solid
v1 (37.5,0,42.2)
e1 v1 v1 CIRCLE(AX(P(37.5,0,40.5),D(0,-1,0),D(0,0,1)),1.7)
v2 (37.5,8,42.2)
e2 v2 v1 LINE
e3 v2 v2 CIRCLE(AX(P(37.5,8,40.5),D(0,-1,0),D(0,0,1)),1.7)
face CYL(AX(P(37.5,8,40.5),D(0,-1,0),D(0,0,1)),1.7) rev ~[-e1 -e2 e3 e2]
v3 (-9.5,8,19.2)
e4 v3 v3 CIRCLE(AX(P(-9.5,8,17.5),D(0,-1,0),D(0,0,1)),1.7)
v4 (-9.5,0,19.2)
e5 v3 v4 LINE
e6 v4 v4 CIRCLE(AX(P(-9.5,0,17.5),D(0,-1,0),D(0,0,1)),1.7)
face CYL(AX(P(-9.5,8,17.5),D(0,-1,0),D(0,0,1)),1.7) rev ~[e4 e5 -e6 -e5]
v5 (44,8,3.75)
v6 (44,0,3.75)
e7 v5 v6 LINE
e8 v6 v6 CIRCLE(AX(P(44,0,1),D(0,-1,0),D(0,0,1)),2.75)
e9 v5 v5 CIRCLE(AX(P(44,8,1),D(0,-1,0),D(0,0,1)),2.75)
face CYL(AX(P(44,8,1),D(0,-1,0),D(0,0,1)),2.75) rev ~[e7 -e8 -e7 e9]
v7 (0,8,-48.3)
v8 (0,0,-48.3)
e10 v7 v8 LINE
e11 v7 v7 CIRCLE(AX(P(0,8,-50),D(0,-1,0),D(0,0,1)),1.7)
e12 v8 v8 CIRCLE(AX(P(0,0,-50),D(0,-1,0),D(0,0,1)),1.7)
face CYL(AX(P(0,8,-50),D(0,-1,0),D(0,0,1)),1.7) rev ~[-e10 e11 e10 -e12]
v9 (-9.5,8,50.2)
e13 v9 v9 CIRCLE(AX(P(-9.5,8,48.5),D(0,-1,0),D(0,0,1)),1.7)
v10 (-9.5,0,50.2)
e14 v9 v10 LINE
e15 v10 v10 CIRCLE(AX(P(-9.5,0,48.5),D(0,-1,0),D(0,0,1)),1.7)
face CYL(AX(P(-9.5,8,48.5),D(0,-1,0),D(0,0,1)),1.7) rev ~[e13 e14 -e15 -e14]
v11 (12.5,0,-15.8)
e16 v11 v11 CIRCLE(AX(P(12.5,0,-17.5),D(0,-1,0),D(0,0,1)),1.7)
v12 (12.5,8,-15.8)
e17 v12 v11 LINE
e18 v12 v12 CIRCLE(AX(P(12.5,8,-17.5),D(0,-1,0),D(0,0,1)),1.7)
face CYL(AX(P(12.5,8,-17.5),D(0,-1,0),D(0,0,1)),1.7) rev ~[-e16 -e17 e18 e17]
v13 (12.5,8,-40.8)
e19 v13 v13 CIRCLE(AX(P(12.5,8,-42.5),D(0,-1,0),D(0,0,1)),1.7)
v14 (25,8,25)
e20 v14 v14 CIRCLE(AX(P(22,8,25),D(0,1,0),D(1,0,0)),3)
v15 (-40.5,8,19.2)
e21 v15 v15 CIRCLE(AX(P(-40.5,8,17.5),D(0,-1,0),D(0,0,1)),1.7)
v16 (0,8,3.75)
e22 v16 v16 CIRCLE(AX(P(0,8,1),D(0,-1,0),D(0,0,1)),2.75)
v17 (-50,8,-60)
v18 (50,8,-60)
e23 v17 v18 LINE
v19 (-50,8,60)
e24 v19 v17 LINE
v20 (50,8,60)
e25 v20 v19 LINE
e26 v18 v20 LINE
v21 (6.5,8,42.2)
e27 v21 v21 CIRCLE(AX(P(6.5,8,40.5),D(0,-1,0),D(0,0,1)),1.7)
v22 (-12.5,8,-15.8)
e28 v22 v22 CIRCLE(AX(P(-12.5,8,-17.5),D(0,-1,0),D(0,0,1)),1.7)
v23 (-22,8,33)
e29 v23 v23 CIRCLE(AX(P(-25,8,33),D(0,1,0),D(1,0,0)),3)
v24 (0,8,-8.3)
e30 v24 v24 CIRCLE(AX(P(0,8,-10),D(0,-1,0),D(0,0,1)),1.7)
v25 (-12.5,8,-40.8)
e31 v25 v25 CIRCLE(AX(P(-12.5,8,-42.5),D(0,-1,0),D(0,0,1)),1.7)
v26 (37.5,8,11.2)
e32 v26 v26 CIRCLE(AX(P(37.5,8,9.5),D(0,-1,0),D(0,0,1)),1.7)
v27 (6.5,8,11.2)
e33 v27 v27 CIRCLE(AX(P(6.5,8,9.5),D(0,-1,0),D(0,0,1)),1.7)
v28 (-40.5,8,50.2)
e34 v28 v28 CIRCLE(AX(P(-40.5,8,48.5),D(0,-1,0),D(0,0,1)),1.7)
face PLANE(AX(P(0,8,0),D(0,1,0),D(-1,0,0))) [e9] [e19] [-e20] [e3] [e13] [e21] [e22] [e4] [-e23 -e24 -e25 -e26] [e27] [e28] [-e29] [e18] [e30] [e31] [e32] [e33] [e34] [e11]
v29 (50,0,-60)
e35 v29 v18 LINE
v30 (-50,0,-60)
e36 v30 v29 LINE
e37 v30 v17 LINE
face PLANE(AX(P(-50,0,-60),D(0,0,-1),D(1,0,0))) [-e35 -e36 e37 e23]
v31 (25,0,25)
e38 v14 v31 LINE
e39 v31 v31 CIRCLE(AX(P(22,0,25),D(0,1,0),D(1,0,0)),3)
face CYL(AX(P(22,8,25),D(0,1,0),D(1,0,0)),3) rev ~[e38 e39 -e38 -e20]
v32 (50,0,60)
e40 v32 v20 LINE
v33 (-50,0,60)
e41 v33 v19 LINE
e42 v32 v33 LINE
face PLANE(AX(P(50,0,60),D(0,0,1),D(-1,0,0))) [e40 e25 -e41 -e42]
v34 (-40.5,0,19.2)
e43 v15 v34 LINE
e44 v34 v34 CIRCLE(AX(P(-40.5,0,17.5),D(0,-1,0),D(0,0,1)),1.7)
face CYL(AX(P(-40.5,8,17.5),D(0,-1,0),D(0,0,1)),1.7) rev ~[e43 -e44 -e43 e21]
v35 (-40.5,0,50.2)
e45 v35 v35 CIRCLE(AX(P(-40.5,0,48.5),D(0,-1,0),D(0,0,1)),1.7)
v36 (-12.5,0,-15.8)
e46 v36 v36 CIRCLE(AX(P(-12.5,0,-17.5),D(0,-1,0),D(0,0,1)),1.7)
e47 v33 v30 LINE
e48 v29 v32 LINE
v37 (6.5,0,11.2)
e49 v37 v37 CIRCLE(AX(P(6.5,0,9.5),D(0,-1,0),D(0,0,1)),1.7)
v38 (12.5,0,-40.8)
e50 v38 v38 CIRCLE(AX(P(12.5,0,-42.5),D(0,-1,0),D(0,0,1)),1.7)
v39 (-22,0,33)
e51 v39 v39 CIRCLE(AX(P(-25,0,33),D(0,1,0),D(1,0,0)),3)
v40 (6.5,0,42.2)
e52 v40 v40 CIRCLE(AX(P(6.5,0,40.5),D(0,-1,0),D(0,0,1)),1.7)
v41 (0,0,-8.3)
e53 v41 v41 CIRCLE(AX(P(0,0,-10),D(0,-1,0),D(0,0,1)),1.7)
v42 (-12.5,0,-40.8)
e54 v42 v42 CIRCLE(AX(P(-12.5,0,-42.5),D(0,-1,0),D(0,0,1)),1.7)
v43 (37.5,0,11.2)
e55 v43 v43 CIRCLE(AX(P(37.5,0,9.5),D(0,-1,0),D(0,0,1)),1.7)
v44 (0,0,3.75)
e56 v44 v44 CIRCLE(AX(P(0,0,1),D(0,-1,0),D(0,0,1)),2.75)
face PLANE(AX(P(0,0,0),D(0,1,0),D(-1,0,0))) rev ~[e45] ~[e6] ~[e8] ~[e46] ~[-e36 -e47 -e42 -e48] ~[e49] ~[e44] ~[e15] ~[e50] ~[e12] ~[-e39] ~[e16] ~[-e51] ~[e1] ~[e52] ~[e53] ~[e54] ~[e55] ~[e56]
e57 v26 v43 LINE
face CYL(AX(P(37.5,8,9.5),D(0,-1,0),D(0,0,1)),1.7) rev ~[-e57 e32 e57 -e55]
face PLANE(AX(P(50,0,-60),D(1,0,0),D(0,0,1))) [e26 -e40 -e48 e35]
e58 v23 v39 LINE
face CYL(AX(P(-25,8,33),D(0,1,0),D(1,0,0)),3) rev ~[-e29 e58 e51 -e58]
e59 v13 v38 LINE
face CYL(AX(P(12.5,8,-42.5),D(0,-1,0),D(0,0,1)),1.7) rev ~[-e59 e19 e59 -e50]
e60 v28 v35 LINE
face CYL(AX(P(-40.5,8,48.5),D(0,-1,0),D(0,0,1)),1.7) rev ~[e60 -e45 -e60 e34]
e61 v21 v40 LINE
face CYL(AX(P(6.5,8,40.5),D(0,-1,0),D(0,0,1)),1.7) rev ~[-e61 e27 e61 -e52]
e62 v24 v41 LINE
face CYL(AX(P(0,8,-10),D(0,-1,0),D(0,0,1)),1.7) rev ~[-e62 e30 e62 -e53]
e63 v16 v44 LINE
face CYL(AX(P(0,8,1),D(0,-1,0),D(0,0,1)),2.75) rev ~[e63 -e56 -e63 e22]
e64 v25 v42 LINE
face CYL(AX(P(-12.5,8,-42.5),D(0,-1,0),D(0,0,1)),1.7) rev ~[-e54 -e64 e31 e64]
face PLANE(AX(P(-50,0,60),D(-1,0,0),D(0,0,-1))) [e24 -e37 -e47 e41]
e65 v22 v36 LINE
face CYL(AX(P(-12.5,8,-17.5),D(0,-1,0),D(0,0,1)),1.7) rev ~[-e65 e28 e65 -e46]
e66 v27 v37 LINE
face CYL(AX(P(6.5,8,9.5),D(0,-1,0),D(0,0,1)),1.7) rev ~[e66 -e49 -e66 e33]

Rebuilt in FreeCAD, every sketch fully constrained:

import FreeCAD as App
import Part
import Sketcher

V = App.Vector


def add_polygon(sketch, points):
    """Adds a closed chain of lines whose ends are joined by coincident constraints."""
    first, n = sketch.GeometryCount, len(points)
    for a, b in zip(points, points[1:] + points[:1]):
        sketch.addGeometry(Part.LineSegment(App.Vector(*a, 0), App.Vector(*b, 0)), False)
    for i in range(n):
        sketch.addConstraint(Sketcher.Constraint("Coincident", first + i, 2, first + (i + 1) % n, 1))

doc = App.newDocument("Part")
body = doc.addObject("PartDesign::Body", "Body")

sketch1 = doc.addObject("Sketcher::SketchObject", "Sketch")
body.addObject(sketch1)
sketch1.AttachmentSupport = (doc.XZ_Plane, [""])
sketch1.MapMode = "FlatFace"
add_polygon(sketch1, [(50, -60), (-50, -60), (-50, 60), (50, 60)])
sketch1.addConstraint(Sketcher.Constraint("Horizontal", 0))
sketch1.addConstraint(Sketcher.Constraint("Vertical", 1))
sketch1.addConstraint(Sketcher.Constraint("Horizontal", 2))
sketch1.addConstraint(Sketcher.Constraint("Vertical", 3))
sketch1.addConstraint(Sketcher.Constraint("Symmetric", 0, 2, 2, 2, -1, 1))
sketch1.addConstraint(Sketcher.Constraint("DistanceX", 0, 2, 0, 1, 100.0))
sketch1.addConstraint(Sketcher.Constraint("DistanceY", 1, 1, 1, 2, 120.0))
pad1 = doc.addObject("PartDesign::Pad", "Pad")
body.addObject(pad1)
pad1.Profile = sketch1
pad1.Length = 8
pad1.Reversed = True

sketch2 = doc.addObject("Sketcher::SketchObject", "Sketch001")
body.addObject(sketch2)
sketch2.AttachmentSupport = (doc.XZ_Plane, [""])
sketch2.MapMode = "FlatFace"
sketch2.AttachmentOffset = App.Placement(V(0, 0, -8), App.Rotation())
sketch2.addGeometry(Part.Circle(V(0, -10, 0), V(0, 0, 1), 1.7), False)
sketch2.addGeometry(Part.Circle(V(0, -50, 0), V(0, 0, 1), 1.7), False)
sketch2.addConstraint(Sketcher.Constraint("Equal", 0, 1))
sketch2.addConstraint(Sketcher.Constraint("PointOnObject", 0, 3, -2))
sketch2.addConstraint(Sketcher.Constraint("PointOnObject", 1, 3, -2))
sketch2.addConstraint(Sketcher.Constraint("Diameter", 0, 3.4))
sketch2.addConstraint(Sketcher.Constraint("DistanceY", 0, 3, -1, 1, 10.0))
sketch2.addConstraint(Sketcher.Constraint("DistanceY", 1, 3, -1, 1, 50.0))
doc.recompute()
hole = doc.addObject("PartDesign::Hole", "Hole")
body.addObject(hole)
hole.Profile = sketch2
hole.ThreadType = "None"
hole.Diameter = 3.4
hole.DepthType = "ThroughAll"
hole.Reversed = True

sketch3 = doc.addObject("Sketcher::SketchObject", "Sketch002")
body.addObject(sketch3)
sketch3.AttachmentSupport = (doc.XZ_Plane, [""])
sketch3.MapMode = "FlatFace"
sketch3.AttachmentOffset = App.Placement(V(0, 0, -8), App.Rotation())
sketch3.addGeometry(Part.Circle(V(-12.5, -17.5, 0), V(0, 0, 1), 1.7), False)
sketch3.addGeometry(Part.Circle(V(-12.5, -42.5, 0), V(0, 0, 1), 1.7), False)
sketch3.addGeometry(Part.Circle(V(12.5, -42.5, 0), V(0, 0, 1), 1.7), False)
sketch3.addGeometry(Part.Circle(V(12.5, -17.5, 0), V(0, 0, 1), 1.7), False)
sketch3.addConstraint(Sketcher.Constraint("Equal", 0, 1))
sketch3.addConstraint(Sketcher.Constraint("Equal", 1, 2))
sketch3.addConstraint(Sketcher.Constraint("Equal", 2, 3))
sketch3.addConstraint(Sketcher.Constraint("Symmetric", 1, 3, 2, 3, -2))
sketch3.addConstraint(Sketcher.Constraint("Symmetric", 0, 3, 3, 3, -2))
sketch3.addConstraint(Sketcher.Constraint("Vertical", 0, 3, 1, 3))
sketch3.addConstraint(Sketcher.Constraint("Diameter", 0, 3.4))
sketch3.addConstraint(Sketcher.Constraint("DistanceY", 1, 3, 0, 3, 25.0))
sketch3.addConstraint(Sketcher.Constraint("DistanceX", 1, 3, 2, 3, 25.0))
sketch3.addConstraint(Sketcher.Constraint("DistanceY", 0, 3, -1, 1, 17.5))
doc.recompute()
hole2 = doc.addObject("PartDesign::Hole", "Hole001")
body.addObject(hole2)
hole2.Profile = sketch3
hole2.ThreadType = "None"
hole2.Diameter = 3.4
hole2.DepthType = "ThroughAll"
hole2.Reversed = True

sketch4 = doc.addObject("Sketcher::SketchObject", "Sketch003")
body.addObject(sketch4)
sketch4.AttachmentSupport = (doc.XZ_Plane, [""])
sketch4.MapMode = "FlatFace"
sketch4.AttachmentOffset = App.Placement(V(0, 0, -8), App.Rotation())
sketch4.addGeometry(Part.Circle(V(-40.5, 48.5, 0), V(0, 0, 1), 1.7), False)
sketch4.addGeometry(Part.Circle(V(-40.5, 17.5, 0), V(0, 0, 1), 1.7), False)
sketch4.addGeometry(Part.Circle(V(-9.5, 17.5, 0), V(0, 0, 1), 1.7), False)
sketch4.addGeometry(Part.Circle(V(-9.5, 48.5, 0), V(0, 0, 1), 1.7), False)
sketch4.addConstraint(Sketcher.Constraint("Equal", 0, 1))
sketch4.addConstraint(Sketcher.Constraint("Equal", 1, 2))
sketch4.addConstraint(Sketcher.Constraint("Equal", 2, 3))
sketch4.addConstraint(Sketcher.Constraint("Horizontal", 1, 3, 2, 3))
sketch4.addConstraint(Sketcher.Constraint("Horizontal", 0, 3, 3, 3))
sketch4.addConstraint(Sketcher.Constraint("Vertical", 0, 3, 1, 3))
sketch4.addConstraint(Sketcher.Constraint("Vertical", 2, 3, 3, 3))
sketch4.addConstraint(Sketcher.Constraint("Diameter", 0, 3.4))
sketch4.addConstraint(Sketcher.Constraint("DistanceY", 1, 3, 0, 3, 31.0))
sketch4.addConstraint(Sketcher.Constraint("DistanceX", 1, 3, 2, 3, 31.0))
sketch4.addConstraint(Sketcher.Constraint("DistanceX", 0, 3, -1, 1, 40.5))
sketch4.addConstraint(Sketcher.Constraint("DistanceY", -1, 1, 0, 3, 48.5))
doc.recompute()
hole3 = doc.addObject("PartDesign::Hole", "Hole002")
body.addObject(hole3)
hole3.Profile = sketch4
hole3.ThreadType = "None"
hole3.Diameter = 3.4
hole3.DepthType = "ThroughAll"
hole3.Reversed = True

sketch5 = doc.addObject("Sketcher::SketchObject", "Sketch004")
body.addObject(sketch5)
sketch5.AttachmentSupport = (doc.XZ_Plane, [""])
sketch5.MapMode = "FlatFace"
sketch5.AttachmentOffset = App.Placement(V(0, 0, -8), App.Rotation())
sketch5.addGeometry(Part.Circle(V(-25, 33, 0), V(0, 0, 1), 3), False)
sketch5.addConstraint(Sketcher.Constraint("Diameter", 0, 6.0))
sketch5.addConstraint(Sketcher.Constraint("DistanceX", 0, 3, -1, 1, 25.0))
sketch5.addConstraint(Sketcher.Constraint("DistanceY", -1, 1, 0, 3, 33.0))
pocket1 = doc.addObject("PartDesign::Pocket", "Pocket")
body.addObject(pocket1)
pocket1.Profile = sketch5
pocket1.Type = "ThroughAll"
pocket1.Reversed = True

sketch6 = doc.addObject("Sketcher::SketchObject", "Sketch005")
body.addObject(sketch6)
sketch6.AttachmentSupport = (doc.XZ_Plane, [""])
sketch6.MapMode = "FlatFace"
sketch6.AttachmentOffset = App.Placement(V(0, 0, -8), App.Rotation())
sketch6.addGeometry(Part.Circle(V(6.5, 40.5, 0), V(0, 0, 1), 1.7), False)
sketch6.addGeometry(Part.Circle(V(6.5, 9.5, 0), V(0, 0, 1), 1.7), False)
sketch6.addGeometry(Part.Circle(V(37.5, 9.5, 0), V(0, 0, 1), 1.7), False)
sketch6.addGeometry(Part.Circle(V(37.5, 40.5, 0), V(0, 0, 1), 1.7), False)
sketch6.addConstraint(Sketcher.Constraint("Equal", 0, 1))
sketch6.addConstraint(Sketcher.Constraint("Equal", 1, 2))
sketch6.addConstraint(Sketcher.Constraint("Equal", 2, 3))
sketch6.addConstraint(Sketcher.Constraint("Horizontal", 1, 3, 2, 3))
sketch6.addConstraint(Sketcher.Constraint("Horizontal", 0, 3, 3, 3))
sketch6.addConstraint(Sketcher.Constraint("Vertical", 0, 3, 1, 3))
sketch6.addConstraint(Sketcher.Constraint("Vertical", 2, 3, 3, 3))
sketch6.addConstraint(Sketcher.Constraint("Diameter", 0, 3.4))
sketch6.addConstraint(Sketcher.Constraint("DistanceY", 1, 3, 0, 3, 31.0))
sketch6.addConstraint(Sketcher.Constraint("DistanceX", 1, 3, 2, 3, 31.0))
sketch6.addConstraint(Sketcher.Constraint("DistanceX", -1, 1, 0, 3, 6.5))
sketch6.addConstraint(Sketcher.Constraint("DistanceY", -1, 1, 0, 3, 40.5))
doc.recompute()
hole4 = doc.addObject("PartDesign::Hole", "Hole003")
body.addObject(hole4)
hole4.Profile = sketch6
hole4.ThreadType = "None"
hole4.Diameter = 3.4
hole4.DepthType = "ThroughAll"
hole4.Reversed = True

sketch7 = doc.addObject("Sketcher::SketchObject", "Sketch006")
body.addObject(sketch7)
sketch7.AttachmentSupport = (doc.XZ_Plane, [""])
sketch7.MapMode = "FlatFace"
sketch7.AttachmentOffset = App.Placement(V(0, 0, -8), App.Rotation())
sketch7.addGeometry(Part.Circle(V(22, 25, 0), V(0, 0, 1), 3), False)
sketch7.addConstraint(Sketcher.Constraint("Diameter", 0, 6.0))
sketch7.addConstraint(Sketcher.Constraint("DistanceX", -1, 1, 0, 3, 22.0))
sketch7.addConstraint(Sketcher.Constraint("DistanceY", -1, 1, 0, 3, 25.0))
pocket2 = doc.addObject("PartDesign::Pocket", "Pocket001")
body.addObject(pocket2)
pocket2.Profile = sketch7
pocket2.Type = "ThroughAll"
pocket2.Reversed = True

sketch8 = doc.addObject("Sketcher::SketchObject", "Sketch007")
body.addObject(sketch8)
sketch8.AttachmentSupport = (doc.XZ_Plane, [""])
sketch8.MapMode = "FlatFace"
sketch8.AttachmentOffset = App.Placement(V(0, 0, -8), App.Rotation())
sketch8.addGeometry(Part.Circle(V(0, 1, 0), V(0, 0, 1), 2.8), False)
sketch8.addGeometry(Part.Circle(V(44, 1, 0), V(0, 0, 1), 2.8), False)
sketch8.addConstraint(Sketcher.Constraint("Equal", 0, 1))
sketch8.addConstraint(Sketcher.Constraint("PointOnObject", 0, 3, -2))
sketch8.addConstraint(Sketcher.Constraint("Horizontal", 0, 3, 1, 3))
sketch8.addConstraint(Sketcher.Constraint("Diameter", 0, 5.5))
sketch8.addConstraint(Sketcher.Constraint("DistanceY", -1, 1, 0, 3, 1.0))
sketch8.addConstraint(Sketcher.Constraint("DistanceX", -1, 1, 1, 3, 44.0))
doc.recompute()
hole5 = doc.addObject("PartDesign::Hole", "Hole004")
body.addObject(hole5)
hole5.Profile = sketch8
hole5.ThreadType = "None"
hole5.Diameter = 5.5
hole5.DepthType = "ThroughAll"
hole5.Reversed = True

doc.recompute()
